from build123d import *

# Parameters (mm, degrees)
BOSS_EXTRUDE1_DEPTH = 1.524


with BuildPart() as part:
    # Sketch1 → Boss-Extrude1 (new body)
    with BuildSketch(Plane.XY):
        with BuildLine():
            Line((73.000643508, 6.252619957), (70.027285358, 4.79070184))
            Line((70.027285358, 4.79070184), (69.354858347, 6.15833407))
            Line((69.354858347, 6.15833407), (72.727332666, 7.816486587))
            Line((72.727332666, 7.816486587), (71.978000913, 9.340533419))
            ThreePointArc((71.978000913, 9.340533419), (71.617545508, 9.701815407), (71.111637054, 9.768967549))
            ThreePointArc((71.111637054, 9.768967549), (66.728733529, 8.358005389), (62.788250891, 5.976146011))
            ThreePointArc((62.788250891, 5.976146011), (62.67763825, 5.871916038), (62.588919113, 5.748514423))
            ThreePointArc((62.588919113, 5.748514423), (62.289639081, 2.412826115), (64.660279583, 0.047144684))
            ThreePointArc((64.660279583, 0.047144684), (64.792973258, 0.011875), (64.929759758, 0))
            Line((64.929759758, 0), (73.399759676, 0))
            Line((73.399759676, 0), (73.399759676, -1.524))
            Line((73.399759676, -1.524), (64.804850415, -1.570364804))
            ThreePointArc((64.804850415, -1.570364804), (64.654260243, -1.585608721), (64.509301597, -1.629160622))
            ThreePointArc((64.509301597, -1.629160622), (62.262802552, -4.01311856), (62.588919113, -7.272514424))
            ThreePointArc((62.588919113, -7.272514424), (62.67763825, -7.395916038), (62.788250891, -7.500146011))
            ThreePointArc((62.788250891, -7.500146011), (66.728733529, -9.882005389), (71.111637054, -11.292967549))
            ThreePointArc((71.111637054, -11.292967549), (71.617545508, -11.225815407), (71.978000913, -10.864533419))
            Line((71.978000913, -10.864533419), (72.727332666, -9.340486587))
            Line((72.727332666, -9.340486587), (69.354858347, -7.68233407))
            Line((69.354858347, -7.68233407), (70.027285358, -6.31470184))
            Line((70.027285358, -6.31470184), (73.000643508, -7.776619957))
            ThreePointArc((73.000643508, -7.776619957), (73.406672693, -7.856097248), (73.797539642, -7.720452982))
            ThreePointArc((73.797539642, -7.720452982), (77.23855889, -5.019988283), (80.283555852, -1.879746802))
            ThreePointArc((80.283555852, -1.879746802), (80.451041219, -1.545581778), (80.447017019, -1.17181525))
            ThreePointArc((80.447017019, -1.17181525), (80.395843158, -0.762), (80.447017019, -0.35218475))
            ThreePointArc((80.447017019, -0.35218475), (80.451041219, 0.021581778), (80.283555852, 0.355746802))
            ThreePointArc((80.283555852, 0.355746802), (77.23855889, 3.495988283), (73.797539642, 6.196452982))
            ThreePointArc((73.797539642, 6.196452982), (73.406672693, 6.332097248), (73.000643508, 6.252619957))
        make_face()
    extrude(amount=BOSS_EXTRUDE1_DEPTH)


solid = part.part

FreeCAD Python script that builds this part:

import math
import FreeCAD as App
import Part
import Sketcher

V = App.Vector
Q = App.Units.Quantity

doc = App.newDocument("Part")
body = doc.addObject("PartDesign::Body", "Body")

sketch1 = doc.addObject("Sketcher::SketchObject", "Sketch")
body.addObject(sketch1)
sketch1.AttachmentSupport = (doc.XY_Plane, [""])
sketch1.MapMode = "FlatFace"
sketch1.addGeometry(Part.LineSegment(V(73, 6.25, 0), V(70.03, 4.79, 0)), False)
sketch1.addGeometry(Part.LineSegment(V(70.03, 4.79, 0), V(69.35, 6.16, 0)), False)
sketch1.addGeometry(Part.LineSegment(V(69.35, 6.16, 0), V(72.73, 7.82, 0)), False)
sketch1.addGeometry(Part.LineSegment(V(72.73, 7.82, 0), V(71.98, 9.34, 0)), False)
sketch1.addGeometry(Part.ArcOfCircle(Part.Circle(V(71.27, 8.99, 0), V(0, 0, 1), 0.79), math.radians(26), math.radians(101)), False)
sketch1.addGeometry(Part.ArcOfCircle(Part.Circle(V(74.97, -9.72, 0), V(0, 0, 1), 19.87), math.radians(101), math.radians(128)), False)
sketch1.addGeometry(Part.ArcOfCircle(Part.Circle(V(63.27, 5.35, 0), V(0, 0, 1), 0.79), math.radians(128), math.radians(150)), False)
sketch1.addGeometry(Part.ArcOfCircle(Part.Circle(V(66, 3.76, 0), V(0, 0, 1), 3.95), math.radians(150), math.radians(250)), False)
sketch1.addGeometry(Part.ArcOfCircle(Part.Circle(V(64.93, 0.79, 0), V(0, 0, 1), 0.79), math.radians(-109.85), math.radians(-90)), False)
sketch1.addGeometry(Part.LineSegment(V(64.93, 0, 0), V(73.4, 0, 0)), False)
sketch1.addGeometry(Part.LineSegment(V(73.4, 0, 0), V(73.4, -1.52, 0)), False)
sketch1.addGeometry(Part.LineSegment(V(73.4, -1.52, 0), V(64.8, -1.57, 0)), False)
sketch1.addGeometry(Part.ArcOfCircle(Part.Circle(V(64.81, -2.36, 0), V(0, 0, 1), 0.79), math.radians(90), math.radians(112)), False)
sketch1.addGeometry(Part.ArcOfCircle(Part.Circle(V(66, -5.29, 0), V(0, 0, 1), 3.95), math.radians(112), math.radians(210)), False)
sketch1.addGeometry(Part.ArcOfCircle(Part.Circle(V(63.27, -6.87, 0), V(0, 0, 1), 0.79), math.radians(-150), math.radians(-128)), False)
sketch1.addGeometry(Part.ArcOfCircle(Part.Circle(V(74.97, 8.2, 0), V(0, 0, 1), 19.87), math.radians(-128), math.radians(-101)), False)
sketch1.addGeometry(Part.ArcOfCircle(Part.Circle(V(71.27, -10.51, 0), V(0, 0, 1), 0.79), math.radians(-101), math.radians(-26)), False)
sketch1.addGeometry(Part.LineSegment(V(71.98, -10.86, 0), V(72.73, -9.34, 0)), False)
sketch1.addGeometry(Part.LineSegment(V(72.73, -9.34, 0), V(69.35, -7.68, 0)), False)
sketch1.addGeometry(Part.LineSegment(V(69.35, -7.68, 0), V(70.03, -6.31, 0)), False)
sketch1.addGeometry(Part.LineSegment(V(70.03, -6.31, 0), V(73, -7.78, 0)), False)
sketch1.addGeometry(Part.ArcOfCircle(Part.Circle(V(73.35, -7.06, 0), V(0, 0, 1), 0.79), math.radians(-116), math.radians(-56)), False)
sketch1.addGeometry(Part.ArcOfCircle(Part.Circle(V(55.6, 19, 0), V(0, 0, 1), 32.33), math.radians(-55.75), math.radians(-40.24)), False)
sketch1.addGeometry(Part.ArcOfCircle(Part.Circle(V(79.68, -1.37, 0), V(0, 0, 1), 0.79), math.radians(-40), math.radians(14)), False)
sketch1.addGeometry(Part.ArcOfCircle(Part.Circle(V(82.06, -0.76, 0), V(0, 0, 1), 1.67), math.radians(166), math.radians(194)), False)
sketch1.addGeometry(Part.ArcOfCircle(Part.Circle(V(79.68, -0.16, 0), V(0, 0, 1), 0.79), math.radians(-14), math.radians(40)), False)
sketch1.addGeometry(Part.ArcOfCircle(Part.Circle(V(55.6, -20.53, 0), V(0, 0, 1), 32.33), math.radians(40.24), math.radians(55.75)), False)
sketch1.addGeometry(Part.ArcOfCircle(Part.Circle(V(73.35, 5.54, 0), V(0, 0, 1), 0.79), math.radians(56), math.radians(116)), False)
sketch1.addConstraint(Sketcher.Constraint("Coincident", 0, 2, 1, 1))
sketch1.addConstraint(Sketcher.Constraint("Coincident", 1, 2, 2, 1))
sketch1.addConstraint(Sketcher.Constraint("Coincident", 2, 2, 3, 1))
sketch1.addConstraint(Sketcher.Constraint("Tangent", 3, 2, 4, 1))
sketch1.addConstraint(Sketcher.Constraint("Tangent", 4, 2, 5, 1))
sketch1.addConstraint(Sketcher.Constraint("Tangent", 5, 2, 6, 1))
sketch1.addConstraint(Sketcher.Constraint("Tangent", 6, 2, 7, 1))
sketch1.addConstraint(Sketcher.Constraint("Tangent", 7, 2, 8, 1))
sketch1.addConstraint(Sketcher.Constraint("Tangent", 8, 2, 9, 1))
sketch1.addConstraint(Sketcher.Constraint("Coincident", 9, 2, 10, 1))
sketch1.addConstraint(Sketcher.Constraint("Coincident", 10, 2, 11, 1))
sketch1.addConstraint(Sketcher.Constraint("Tangent", 11, 2, 12, 1))
sketch1.addConstraint(Sketcher.Constraint("Tangent", 12, 2, 13, 1))
sketch1.addConstraint(Sketcher.Constraint("Tangent", 13, 2, 14, 1))
sketch1.addConstraint(Sketcher.Constraint("Tangent", 14, 2, 15, 1))
sketch1.addConstraint(Sketcher.Constraint("Tangent", 15, 2, 16, 1))
sketch1.addConstraint(Sketcher.Constraint("Tangent", 16, 2, 17, 1))
sketch1.addConstraint(Sketcher.Constraint("Coincident", 17, 2, 18, 1))
sketch1.addConstraint(Sketcher.Constraint("Coincident", 18, 2, 19, 1))
sketch1.addConstraint(Sketcher.Constraint("Coincident", 19, 2, 20, 1))
sketch1.addConstraint(Sketcher.Constraint("Tangent", 20, 2, 21, 1))
sketch1.addConstraint(Sketcher.Constraint("Tangent", 21, 2, 22, 1))
sketch1.addConstraint(Sketcher.Constraint("Tangent", 22, 2, 23, 1))
sketch1.addConstraint(Sketcher.Constraint("Tangent", 23, 2, 24, 2))
sketch1.addConstraint(Sketcher.Constraint("Tangent", 24, 1, 25, 1))
sketch1.addConstraint(Sketcher.Constraint("Tangent", 25, 2, 26, 1))
sketch1.addConstraint(Sketcher.Constraint("Tangent", 26, 2, 27, 1))
sketch1.addConstraint(Sketcher.Constraint("Tangent", 27, 2, 0, 1))
sketch1.addConstraint(Sketcher.Constraint("Horizontal", 9))
sketch1.addConstraint(Sketcher.Constraint("Vertical", 10))
sketch1.addConstraint(Sketcher.Constraint("Equal", 4, 6))
sketch1.addConstraint(Sketcher.Constraint("Equal", 6, 8))
sketch1.addConstraint(Sketcher.Constraint("Equal", 8, 12))
sketch1.addConstraint(Sketcher.Constraint("Equal", 7, 13))
sketch1.addConstraint(Sketcher.Constraint("Equal", 12, 14))
sketch1.addConstraint(Sketcher.Constraint("Equal", 5, 15))
sketch1.addConstraint(Sketcher.Constraint("Equal", 14, 16))
sketch1.addConstraint(Sketcher.Constraint("Equal", 16, 21))
sketch1.addConstraint(Sketcher.Constraint("Equal", 21, 23))
sketch1.addConstraint(Sketcher.Constraint("Equal", 23, 25))
sketch1.addConstraint(Sketcher.Constraint("Equal", 22, 26))
sketch1.addConstraint(Sketcher.Constraint("Equal", 25, 27))
sketch1.addConstraint(Sketcher.Constraint("PointOnObject", 8, 2, -1))
sketch1.addConstraint(Sketcher.Constraint("Perpendicular", 0, 1))
sketch1.addConstraint(Sketcher.Constraint("Perpendicular", 1, 2))
sketch1.addConstraint(Sketcher.Constraint("Perpendicular", 2, 3))
sketch1.addConstraint(Sketcher.Constraint("Perpendicular", 17, 18))
sketch1.addConstraint(Sketcher.Constraint("Perpendicular", 18, 19))
sketch1.addConstraint(Sketcher.Constraint("Perpendicular", 19, 20))
sketch1.addConstraint(Sketcher.Constraint("Vertical", 7, 3, 13, 3))
sketch1.addConstraint(Sketcher.Constraint("Vertical", 6, 3, 14, 3))
sketch1.addConstraint(Sketcher.Constraint("Vertical", 5, 3, 15, 3))
sketch1.addConstraint(Sketcher.Constraint("Vertical", 4, 3, 16, 3))
sketch1.addConstraint(Sketcher.Constraint("Vertical", 23, 3, 25, 3))
sketch1.addConstraint(Sketcher.Constraint("Vertical", 22, 3, 26, 3))
sketch1.addConstraint(Sketcher.Constraint("Vertical", 21, 3, 27, 3))
sketch1.addConstraint(Sketcher.Constraint("Vertical", 3, 2, 16, 2))
sketch1.addConstraint(Sketcher.Constraint("Vertical", 2, 2, 17, 2))
sketch1.addConstraint(Sketcher.Constraint("Vertical", 1, 2, 18, 2))
sketch1.addConstraint(Sketcher.Constraint("Vertical", 0, 2, 19, 2))
sketch1.addConstraint(Sketcher.Constraint("Radius", 4, Q("0.03125 in")))
sketch1.addConstraint(Sketcher.Constraint("DistanceY", 10, 2, 10, 1, Q("0.06 in")))
sketch1.addConstraint(Sketcher.Constraint("Distance", 1, Q("0.06 in")))
sketch1.addConstraint(Sketcher.Constraint("DistanceY", 24, 3, -1, 1, Q("0.03 in")))
sketch1.addConstraint(Sketcher.Constraint("Radius", 5, Q("19.870379 mm")))
sketch1.addConstraint(Sketcher.Constraint("DistanceX", 9, 1, 9, 2, Q("8.47 mm")))
sketch1.addConstraint(Sketcher.Constraint("Radius", 7, Q("3.948504 mm")))
sketch1.addConstraint(Sketcher.Constraint("Radius", 22, Q("32.329924 mm")))
sketch1.addConstraint(Sketcher.Constraint("Radius", 24, Q("1.666547 mm")))
sketch1.addConstraint(Sketcher.Constraint("Distance", 3, Q("1.698298 mm")))
sketch1.addConstraint(Sketcher.Constraint("DistanceY", -1, 1, 6, 3, Q("5.348999 mm")))
sketch1.addConstraint(Sketcher.Constraint("DistanceY", -1, 1, 0, 2, Q("4.790702 mm")))
sketch1.addConstraint(Sketcher.Constraint("DistanceX", -1, 1, 3, 2, Q("71.978001 mm")))
sketch1.addConstraint(Sketcher.Constraint("DistanceX", -1, 1, 12, 2, Q("64.509302 mm")))
sketch1.addConstraint(Sketcher.Constraint("DistanceX", 4, 3, 5, 3, Q("3.702498 mm")))
sketch1.addConstraint(Sketcher.Constraint("DistanceY", 16, 3, 21, 3, Q("3.45 mm")))
sketch1.addConstraint(Sketcher.Constraint("DistanceX", 5, 3, 24, 3, Q("7.0942 mm")))
sketch1.addConstraint(Sketcher.Constraint("DistanceY", 1, 2, 3, 2, Q("3.182199 mm")))
sketch1.addConstraint(Sketcher.Constraint("DistanceY", 15, 3, 4, 2, Q("1.569399 mm")))
sketch1.addConstraint(Sketcher.Constraint("DistanceX", -1, 1, 8, 3, Q("64.92976 mm")))
sketch1.addConstraint(Sketcher.Constraint("DistanceY", -1, 1, 22, 3, Q("19.004592 mm")))
pad1 = doc.addObject("PartDesign::Pad", "Pad")
body.addObject(pad1)
pad1.Profile = sketch1
pad1.Length = Q("0.06 in")

doc.recompute()
